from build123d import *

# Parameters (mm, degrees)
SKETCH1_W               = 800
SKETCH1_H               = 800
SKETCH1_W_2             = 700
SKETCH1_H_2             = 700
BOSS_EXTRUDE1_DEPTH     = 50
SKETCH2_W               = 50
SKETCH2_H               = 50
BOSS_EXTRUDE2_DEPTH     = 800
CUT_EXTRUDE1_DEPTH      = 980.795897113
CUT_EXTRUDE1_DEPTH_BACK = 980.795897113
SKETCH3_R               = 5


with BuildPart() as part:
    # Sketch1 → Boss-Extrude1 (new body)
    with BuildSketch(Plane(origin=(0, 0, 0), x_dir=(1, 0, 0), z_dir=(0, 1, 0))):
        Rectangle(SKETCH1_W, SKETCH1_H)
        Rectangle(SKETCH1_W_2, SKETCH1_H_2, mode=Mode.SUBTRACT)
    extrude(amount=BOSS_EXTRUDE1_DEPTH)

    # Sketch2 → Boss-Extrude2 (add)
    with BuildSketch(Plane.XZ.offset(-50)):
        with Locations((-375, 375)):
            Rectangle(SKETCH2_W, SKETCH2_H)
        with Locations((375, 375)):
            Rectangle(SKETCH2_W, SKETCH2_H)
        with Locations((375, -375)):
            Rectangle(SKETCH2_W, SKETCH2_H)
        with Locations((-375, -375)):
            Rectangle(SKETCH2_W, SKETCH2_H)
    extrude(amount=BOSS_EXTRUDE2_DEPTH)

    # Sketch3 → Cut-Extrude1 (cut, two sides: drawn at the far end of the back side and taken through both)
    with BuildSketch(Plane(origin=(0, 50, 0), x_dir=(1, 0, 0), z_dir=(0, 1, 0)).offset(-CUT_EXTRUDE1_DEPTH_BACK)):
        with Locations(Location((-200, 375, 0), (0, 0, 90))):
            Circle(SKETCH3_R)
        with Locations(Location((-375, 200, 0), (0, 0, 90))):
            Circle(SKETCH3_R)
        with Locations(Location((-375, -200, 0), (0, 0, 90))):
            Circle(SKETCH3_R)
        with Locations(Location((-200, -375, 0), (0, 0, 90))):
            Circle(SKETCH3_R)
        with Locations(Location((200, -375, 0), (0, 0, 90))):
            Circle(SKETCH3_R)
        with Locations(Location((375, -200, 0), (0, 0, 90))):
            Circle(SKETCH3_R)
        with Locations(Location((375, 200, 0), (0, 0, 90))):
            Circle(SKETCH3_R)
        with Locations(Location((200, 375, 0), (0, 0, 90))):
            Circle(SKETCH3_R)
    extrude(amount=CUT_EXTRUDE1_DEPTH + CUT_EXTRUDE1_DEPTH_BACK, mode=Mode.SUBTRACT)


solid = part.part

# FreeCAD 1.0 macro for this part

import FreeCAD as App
import Part
import Sketcher
from FreeCAD import Vector

doc = App.newDocument("Part")
body = doc.addObject("PartDesign::Body", "Body")

# Sketch on XZ plane
sketch1 = body.newObject("Sketcher::SketchObject", "Sketch")
sketch1.AttachmentSupport = (doc.getObject("XZ_Plane"), [""])
sketch1.MapMode = "FlatFace"
sketch1.addGeometry([
    Part.LineSegment(Vector(-400, -400, 0), Vector(-400, 400, 0)),  # 0
    Part.LineSegment(Vector(-400, 400, 0), Vector(400, 400, 0)),  # 1
    Part.LineSegment(Vector(400, 400, 0), Vector(400, -400, 0)),  # 2
    Part.LineSegment(Vector(400, -400, 0), Vector(-400, -400, 0)),  # 3
    Part.LineSegment(Vector(350, 350, 0), Vector(-350, 350, 0)),  # 4
    Part.LineSegment(Vector(-350, 350, 0), Vector(-350, -350, 0)),  # 5
    Part.LineSegment(Vector(-350, -350, 0), Vector(350, -350, 0)),  # 6
    Part.LineSegment(Vector(350, -350, 0), Vector(350, 350, 0)),  # 7
], False)
sketch1.addConstraint([
    Sketcher.Constraint("Coincident", 0, 2, 1, 1),
    Sketcher.Constraint("Coincident", 1, 2, 2, 1),
    Sketcher.Constraint("Coincident", 2, 2, 3, 1),
    Sketcher.Constraint("Coincident", 3, 2, 0, 1),
    Sketcher.Constraint("Coincident", 4, 2, 5, 1),
    Sketcher.Constraint("Coincident", 5, 2, 6, 1),
    Sketcher.Constraint("Coincident", 6, 2, 7, 1),
    Sketcher.Constraint("Coincident", 7, 2, 4, 1),
    Sketcher.Constraint("Vertical", 0),
    Sketcher.Constraint("Horizontal", 1),
    Sketcher.Constraint("Vertical", 2),
    Sketcher.Constraint("Horizontal", 3),
    Sketcher.Constraint("Horizontal", 4),
    Sketcher.Constraint("Vertical", 5),
    Sketcher.Constraint("Horizontal", 6),
    Sketcher.Constraint("Vertical", 7),
    Sketcher.Constraint("Symmetric", 0, 2, 2, 2, -1, 1),
    Sketcher.Constraint("Symmetric", 4, 2, 6, 2, -1, 1),
    Sketcher.Constraint("Equal", 3, 0),
    Sketcher.Constraint("Equal", 6, 5),
    Sketcher.Constraint("DistanceX", 1, 1, 1, 2, 800.0),
    Sketcher.Constraint("DistanceX", 4, 2, 4, 1, 700.0),
])
pad1 = body.newObject("PartDesign::Pad", "Pad")
pad1.Profile = sketch1
pad1.Length = 50
pad1.Reversed = True

# Sketch on XZ plane
sketch2 = body.newObject("Sketcher::SketchObject", "Sketch001")
sketch2.AttachmentSupport = (doc.getObject("XZ_Plane"), [""])
sketch2.MapMode = "FlatFace"
sketch2.AttachmentOffset = App.Placement(Vector(0, 0, -50), App.Rotation())
sketch2.addGeometry([
    Part.LineSegment(Vector(-400, 400, 0), Vector(-400, 350, 0)),  # 0
    Part.LineSegment(Vector(-400, 350, 0), Vector(-350, 350, 0)),  # 1
    Part.LineSegment(Vector(-350, 350, 0), Vector(-350, 400, 0)),  # 2
    Part.LineSegment(Vector(-350, 400, 0), Vector(-400, 400, 0)),  # 3
    Part.LineSegment(Vector(350, 400, 0), Vector(350, 350, 0)),  # 4
    Part.LineSegment(Vector(350, 350, 0), Vector(400, 350, 0)),  # 5
    Part.LineSegment(Vector(400, 350, 0), Vector(400, 400, 0)),  # 6
    Part.LineSegment(Vector(400, 400, 0), Vector(350, 400, 0)),  # 7
    Part.LineSegment(Vector(350, -350, 0), Vector(350, -400, 0)),  # 8
    Part.LineSegment(Vector(350, -400, 0), Vector(400, -400, 0)),  # 9
    Part.LineSegment(Vector(400, -400, 0), Vector(400, -350, 0)),  # 10
    Part.LineSegment(Vector(400, -350, 0), Vector(350, -350, 0)),  # 11
    Part.LineSegment(Vector(-400, -350, 0), Vector(-400, -400, 0)),  # 12
    Part.LineSegment(Vector(-400, -400, 0), Vector(-350, -400, 0)),  # 13
    Part.LineSegment(Vector(-350, -400, 0), Vector(-350, -350, 0)),  # 14
    Part.LineSegment(Vector(-350, -350, 0), Vector(-400, -350, 0)),  # 15
], False)
sketch2.addConstraint([
    Sketcher.Constraint("Coincident", 0, 2, 1, 1),
    Sketcher.Constraint("Coincident", 1, 2, 2, 1),
    Sketcher.Constraint("Coincident", 2, 2, 3, 1),
    Sketcher.Constraint("Coincident", 3, 2, 0, 1),
    Sketcher.Constraint("Coincident", 4, 2, 5, 1),
    Sketcher.Constraint("Coincident", 5, 2, 6, 1),
    Sketcher.Constraint("Coincident", 6, 2, 7, 1),
    Sketcher.Constraint("Coincident", 7, 2, 4, 1),
    Sketcher.Constraint("Coincident", 8, 2, 9, 1),
    Sketcher.Constraint("Coincident", 9, 2, 10, 1),
    Sketcher.Constraint("Coincident", 10, 2, 11, 1),
    Sketcher.Constraint("Coincident", 11, 2, 8, 1),
    Sketcher.Constraint("Coincident", 12, 2, 13, 1),
    Sketcher.Constraint("Coincident", 13, 2, 14, 1),
    Sketcher.Constraint("Coincident", 14, 2, 15, 1),
    Sketcher.Constraint("Coincident", 15, 2, 12, 1),
    Sketcher.Constraint("Vertical", 0),
    Sketcher.Constraint("Horizontal", 1),
    Sketcher.Constraint("Vertical", 2),
    Sketcher.Constraint("Horizontal", 3),
    Sketcher.Constraint("Vertical", 4),
    Sketcher.Constraint("Horizontal", 5),
    Sketcher.Constraint("Vertical", 6),
    Sketcher.Constraint("Horizontal", 7),
    Sketcher.Constraint("Vertical", 8),
    Sketcher.Constraint("Horizontal", 9),
    Sketcher.Constraint("Vertical", 10),
    Sketcher.Constraint("Horizontal", 11),
    Sketcher.Constraint("Vertical", 12),
    Sketcher.Constraint("Horizontal", 13),
    Sketcher.Constraint("Vertical", 14),
    Sketcher.Constraint("Horizontal", 15),
    Sketcher.Constraint("Symmetric", 2, 2, 8, 2, -1, 1),
    Sketcher.Constraint("Symmetric", 0, 2, 10, 2, -1, 1),
    Sketcher.Constraint("Symmetric", 6, 2, 12, 2, -1, 1),
    Sketcher.Constraint("Symmetric", 4, 2, 14, 2, -1, 1),
    Sketcher.Constraint("Symmetric", 1, 2, 4, 2, -2),
    Sketcher.Constraint("Symmetric", 3, 2, 6, 2, -2),
    Sketcher.Constraint("Equal", 15, 0),
    Sketcher.Constraint("DistanceX", 1, 1, 1, 2, 50.0),
    Sketcher.Constraint("DistanceX", 0, 2, -1, 1, 400.0),
    Sketcher.Constraint("DistanceY", -1, 1, 0, 2, 350.0),
])
pad2 = body.newObject("PartDesign::Pad", "Pad001")
pad2.Profile = sketch2
pad2.Length = 800

# Sketch on XZ plane
sketch3 = body.newObject("Sketcher::SketchObject", "Sketch002")
sketch3.AttachmentSupport = (doc.getObject("XZ_Plane"), [""])
sketch3.MapMode = "FlatFace"
sketch3.AttachmentOffset = App.Placement(Vector(0, 0, -50), App.Rotation())
sketch3.addGeometry([
    Part.Circle(Vector(-200, -375, 0), Vector(0, 0, 1), 5),  # 0
    Part.Circle(Vector(-375, -200, 0), Vector(0, 0, 1), 5),  # 1
    Part.Circle(Vector(-375, 200, 0), Vector(0, 0, 1), 5),  # 2
    Part.Circle(Vector(-200, 375, 0), Vector(0, 0, 1), 5),  # 3
    Part.Circle(Vector(200, 375, 0), Vector(0, 0, 1), 5),  # 4
    Part.Circle(Vector(375, 200, 0), Vector(0, 0, 1), 5),  # 5
    Part.Circle(Vector(375, -200, 0), Vector(0, 0, 1), 5),  # 6
    Part.Circle(Vector(200, -375, 0), Vector(0, 0, 1), 5),  # 7
], False)
sketch3.addConstraint([
    Sketcher.Constraint("Equal", 0, 1),
    Sketcher.Constraint("Equal", 1, 2),
    Sketcher.Constraint("Equal", 2, 3),
    Sketcher.Constraint("Equal", 3, 4),
    Sketcher.Constraint("Equal", 4, 5),
    Sketcher.Constraint("Equal", 5, 6),
    Sketcher.Constraint("Equal", 6, 7),
    Sketcher.Constraint("Symmetric", 0, 3, 4, 3, -1, 1),
    Sketcher.Constraint("Symmetric", 1, 3, 5, 3, -1, 1),
    Sketcher.Constraint("Symmetric", 2, 3, 6, 3, -1, 1),
    Sketcher.Constraint("Symmetric", 3, 3, 7, 3, -1, 1),
    Sketcher.Constraint("Symmetric", 3, 3, 4, 3, -2),
    Sketcher.Constraint("Symmetric", 2, 3, 5, 3, -2),
    Sketcher.Constraint("Diameter", 0, 10.0),
    Sketcher.Constraint("DistanceX", 0, 3, -1, 1, 200.0),
    Sketcher.Constraint("DistanceY", 0, 3, -1, 1, 375.0),
    Sketcher.Constraint("DistanceX", 1, 3, -1, 1, 375.0),
    Sketcher.Constraint("DistanceY", 1, 3, -1, 1, 200.0),
])
pocket1 = body.newObject("PartDesign::Pocket", "Pocket")
pocket1.Profile = sketch3
pocket1.Type = "ThroughAll"
pocket1.Midplane = True

doc.recompute()
